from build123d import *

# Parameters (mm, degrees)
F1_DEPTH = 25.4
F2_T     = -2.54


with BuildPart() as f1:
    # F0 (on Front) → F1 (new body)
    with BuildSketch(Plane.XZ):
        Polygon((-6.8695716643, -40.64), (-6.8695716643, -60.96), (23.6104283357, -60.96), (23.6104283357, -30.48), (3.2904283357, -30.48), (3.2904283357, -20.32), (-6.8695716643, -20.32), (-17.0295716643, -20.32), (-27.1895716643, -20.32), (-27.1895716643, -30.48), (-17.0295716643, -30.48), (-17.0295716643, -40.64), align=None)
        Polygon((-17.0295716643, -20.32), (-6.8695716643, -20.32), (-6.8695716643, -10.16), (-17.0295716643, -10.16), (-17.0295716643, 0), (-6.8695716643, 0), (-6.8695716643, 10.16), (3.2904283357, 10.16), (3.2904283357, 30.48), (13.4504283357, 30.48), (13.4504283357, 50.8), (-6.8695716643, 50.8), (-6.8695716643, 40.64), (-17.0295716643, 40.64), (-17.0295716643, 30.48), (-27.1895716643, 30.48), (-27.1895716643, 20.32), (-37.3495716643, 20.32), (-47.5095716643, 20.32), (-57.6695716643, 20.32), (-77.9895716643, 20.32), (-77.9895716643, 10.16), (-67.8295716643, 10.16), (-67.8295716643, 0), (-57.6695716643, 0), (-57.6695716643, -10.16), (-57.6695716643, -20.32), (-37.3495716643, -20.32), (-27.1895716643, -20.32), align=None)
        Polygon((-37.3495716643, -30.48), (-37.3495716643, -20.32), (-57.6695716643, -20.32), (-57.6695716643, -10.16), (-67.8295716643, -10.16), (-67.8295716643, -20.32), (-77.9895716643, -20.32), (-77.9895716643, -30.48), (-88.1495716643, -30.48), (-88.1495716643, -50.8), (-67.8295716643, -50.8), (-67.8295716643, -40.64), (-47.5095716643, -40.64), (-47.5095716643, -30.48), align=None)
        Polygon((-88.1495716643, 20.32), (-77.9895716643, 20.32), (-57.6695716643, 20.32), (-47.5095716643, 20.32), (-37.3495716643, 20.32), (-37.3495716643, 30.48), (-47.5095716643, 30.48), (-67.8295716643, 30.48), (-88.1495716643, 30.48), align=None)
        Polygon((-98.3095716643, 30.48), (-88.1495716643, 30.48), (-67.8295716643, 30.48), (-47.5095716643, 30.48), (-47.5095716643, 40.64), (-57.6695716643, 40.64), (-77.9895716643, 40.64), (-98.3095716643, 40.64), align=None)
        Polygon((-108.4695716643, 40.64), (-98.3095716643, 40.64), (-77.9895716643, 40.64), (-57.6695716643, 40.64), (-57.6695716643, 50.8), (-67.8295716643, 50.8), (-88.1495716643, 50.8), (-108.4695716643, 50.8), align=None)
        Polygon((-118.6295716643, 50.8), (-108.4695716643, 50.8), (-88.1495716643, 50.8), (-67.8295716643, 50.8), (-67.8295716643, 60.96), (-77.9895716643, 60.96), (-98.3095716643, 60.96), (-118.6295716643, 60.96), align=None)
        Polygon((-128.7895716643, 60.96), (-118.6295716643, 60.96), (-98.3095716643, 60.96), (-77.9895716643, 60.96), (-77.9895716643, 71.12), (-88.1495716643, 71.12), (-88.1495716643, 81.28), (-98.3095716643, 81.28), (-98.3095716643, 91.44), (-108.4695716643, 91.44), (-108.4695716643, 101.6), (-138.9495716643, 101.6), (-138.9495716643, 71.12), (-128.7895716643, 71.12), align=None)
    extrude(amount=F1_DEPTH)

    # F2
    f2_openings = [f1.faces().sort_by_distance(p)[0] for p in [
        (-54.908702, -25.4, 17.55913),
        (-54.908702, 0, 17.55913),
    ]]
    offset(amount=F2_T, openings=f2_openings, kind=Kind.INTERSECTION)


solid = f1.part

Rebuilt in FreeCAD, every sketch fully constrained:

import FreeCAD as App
import Part
import Sketcher
Q = App.Units.Quantity


def faces_at(feature, points):
    """Names of the faces that lie closest to the given points."""
    faces = feature.Shape.Faces
    near = lambda p: min(range(len(faces)), key=lambda i: faces[i].distToShape(Part.Vertex(*p))[0])
    return sorted({f"Face{near(p) + 1}" for p in points})


def add_polygon(sketch, points):
    """Adds a closed chain of lines whose ends are joined by coincident constraints."""
    first, n = sketch.GeometryCount, len(points)
    for a, b in zip(points, points[1:] + points[:1]):
        sketch.addGeometry(Part.LineSegment(App.Vector(*a, 0), App.Vector(*b, 0)), False)
    for i in range(n):
        sketch.addConstraint(Sketcher.Constraint("Coincident", first + i, 2, first + (i + 1) % n, 1))

doc = App.newDocument("Part")
body = doc.addObject("PartDesign::Body", "Body")

# Sketch on XZ plane
sketch1 = body.newObject("Sketcher::SketchObject", "Sketch")
sketch1.AttachmentSupport = (doc.getObject("XZ_Plane"), [""])
sketch1.MapMode = "FlatFace"
add_polygon(sketch1, [(-7, -41), (-7, -61), (24, -61), (24, -30), (3, -30), (3, -20), (-7, -20), (-7, -10), (-17, -10), (-17, 0), (-7, 0), (-7, 10), (3, 10), (3, 30), (13, 30), (13, 51), (-7, 51), (-7, 41), (-17, 41), (-17, 30), (-27, 30), (-27, 20), (-37, 20), (-37, 30), (-48, 30), (-48, 41), (-58, 41), (-58, 51), (-68, 51), (-68, 61), (-78, 61), (-78, 71), (-88, 71), (-88, 81), (-98, 81), (-98, 91), (-108, 91), (-108, 102), (-139, 102), (-139, 71), (-129, 71), (-129, 61), (-119, 61), (-119, 51), (-108, 51), (-108, 41), (-98, 41), (-98, 30), (-88, 30), (-88, 20), (-78, 20), (-78, 10), (-68, 10), (-68, 0), (-58, 0), (-58, -10), (-68, -10), (-68, -20), (-78, -20), (-78, -30), (-88, -30), (-88, -51), (-68, -51), (-68, -41), (-48, -41), (-48, -30), (-37, -30), (-37, -20), (-27, -20), (-27, -30), (-17, -30), (-17, -41)])  # lines 0-71
sketch1.addConstraint([
    Sketcher.Constraint("Vertical", 0),
    Sketcher.Constraint("Horizontal", 1),
    Sketcher.Constraint("Vertical", 2),
    Sketcher.Constraint("Horizontal", 3),
    Sketcher.Constraint("Vertical", 4),
    Sketcher.Constraint("Horizontal", 5),
    Sketcher.Constraint("Vertical", 6),
    Sketcher.Constraint("Horizontal", 7),
    Sketcher.Constraint("Vertical", 8),
    Sketcher.Constraint("Horizontal", 9),
    Sketcher.Constraint("Vertical", 10),
    Sketcher.Constraint("Horizontal", 11),
    Sketcher.Constraint("Vertical", 12),
    Sketcher.Constraint("Horizontal", 13),
    Sketcher.Constraint("Vertical", 14),
    Sketcher.Constraint("Horizontal", 15),
    Sketcher.Constraint("Vertical", 16),
    Sketcher.Constraint("Horizontal", 17),
    Sketcher.Constraint("Vertical", 18),
    Sketcher.Constraint("Horizontal", 19),
    Sketcher.Constraint("Vertical", 20),
    Sketcher.Constraint("Horizontal", 21),
    Sketcher.Constraint("Vertical", 22),
    Sketcher.Constraint("Horizontal", 23),
    Sketcher.Constraint("Vertical", 24),
    Sketcher.Constraint("Horizontal", 25),
    Sketcher.Constraint("Vertical", 26),
    Sketcher.Constraint("Horizontal", 27),
    Sketcher.Constraint("Vertical", 28),
    Sketcher.Constraint("Horizontal", 29),
    Sketcher.Constraint("Vertical", 30),
    Sketcher.Constraint("Horizontal", 31),
    Sketcher.Constraint("Vertical", 32),
    Sketcher.Constraint("Horizontal", 33),
    Sketcher.Constraint("Vertical", 34),
    Sketcher.Constraint("Horizontal", 35),
    Sketcher.Constraint("Vertical", 36),
    Sketcher.Constraint("Horizontal", 37),
    Sketcher.Constraint("Vertical", 38),
    Sketcher.Constraint("Horizontal", 39),
    Sketcher.Constraint("Vertical", 40),
    Sketcher.Constraint("Horizontal", 41),
    Sketcher.Constraint("Vertical", 42),
    Sketcher.Constraint("Horizontal", 43),
    Sketcher.Constraint("Vertical", 44),
    Sketcher.Constraint("Horizontal", 45),
    Sketcher.Constraint("Vertical", 46),
    Sketcher.Constraint("Horizontal", 47),
    Sketcher.Constraint("Vertical", 48),
    Sketcher.Constraint("Horizontal", 49),
    Sketcher.Constraint("Vertical", 50),
    Sketcher.Constraint("Horizontal", 51),
    Sketcher.Constraint("Vertical", 52),
    Sketcher.Constraint("Horizontal", 53),
    Sketcher.Constraint("Vertical", 54),
    Sketcher.Constraint("Horizontal", 55),
    Sketcher.Constraint("Vertical", 56),
    Sketcher.Constraint("Horizontal", 57),
    Sketcher.Constraint("Vertical", 58),
    Sketcher.Constraint("Horizontal", 59),
    Sketcher.Constraint("Vertical", 60),
    Sketcher.Constraint("Horizontal", 61),
    Sketcher.Constraint("Vertical", 62),
    Sketcher.Constraint("Horizontal", 63),
    Sketcher.Constraint("Vertical", 64),
    Sketcher.Constraint("Horizontal", 65),
    Sketcher.Constraint("Vertical", 66),
    Sketcher.Constraint("Horizontal", 67),
    Sketcher.Constraint("Vertical", 68),
    Sketcher.Constraint("Horizontal", 69),
    Sketcher.Constraint("Vertical", 70),
    Sketcher.Constraint("Horizontal", 71),
    Sketcher.Constraint("Symmetric", 6, 2, 10, 2, -1),
    Sketcher.Constraint("Symmetric", 3, 2, 12, 2, -1),
    Sketcher.Constraint("Symmetric", 51, 2, 55, 2, -1),
    Sketcher.Constraint("Symmetric", 49, 2, 57, 2, -1),
    Sketcher.Constraint("Symmetric", 47, 2, 59, 2, -1),
    Sketcher.Constraint("Symmetric", 27, 2, 61, 2, -1),
    Sketcher.Constraint("Symmetric", 24, 2, 63, 2, -1),
    Sketcher.Constraint("Symmetric", 22, 2, 65, 2, -1),
    Sketcher.Constraint("Symmetric", 20, 2, 67, 2, -1),
    Sketcher.Constraint("Symmetric", 18, 2, 69, 2, -1),
    Sketcher.Constraint("Symmetric", 16, 2, 71, 2, -1),
    Sketcher.Constraint("PointOnObject", 8, 2, -1),
    Sketcher.Constraint("PointOnObject", 52, 2, -1),
    Sketcher.Constraint("Horizontal", 13, 2, 18, 2),
    Sketcher.Constraint("Horizontal", 19, 2, 22, 2),
    Sketcher.Constraint("Horizontal", 17, 2, 24, 2),
    Sketcher.Constraint("Horizontal", 15, 2, 26, 2),
    Sketcher.Constraint("Horizontal", 31, 2, 38, 2),
    Sketcher.Constraint("Horizontal", 29, 2, 40, 2),
    Sketcher.Constraint("Horizontal", 27, 2, 42, 2),
    Sketcher.Constraint("Horizontal", 25, 2, 44, 2),
    Sketcher.Constraint("Horizontal", 23, 2, 46, 2),
    Sketcher.Constraint("Horizontal", 21, 2, 48, 2),
    Sketcher.Constraint("Horizontal", 11, 2, 50, 2),
    Sketcher.Constraint("Horizontal", 5, 2, 56, 2),
    Sketcher.Constraint("Vertical", 0, 2, 5, 2),
    Sketcher.Constraint("Vertical", 8, 2, 17, 2),
    Sketcher.Constraint("Vertical", 36, 2, 43, 2),
    Sketcher.Constraint("Vertical", 34, 2, 45, 2),
    Sketcher.Constraint("Vertical", 32, 2, 47, 2),
    Sketcher.Constraint("Vertical", 30, 2, 49, 2),
    Sketcher.Constraint("Vertical", 28, 2, 51, 2),
    Sketcher.Constraint("Vertical", 26, 2, 53, 2),
    Sketcher.Constraint("Equal", 5, 7),
    Sketcher.Constraint("Equal", 11, 13),
    Sketcher.Constraint("Equal", 3, 15),
    Sketcher.Constraint("Equal", 17, 19),
    Sketcher.Constraint("Equal", 19, 21),
    Sketcher.Constraint("Equal", 21, 23),
    Sketcher.Constraint("Equal", 23, 25),
    Sketcher.Constraint("Equal", 25, 27),
    Sketcher.Constraint("Equal", 27, 29),
    Sketcher.Constraint("Equal", 29, 31),
    Sketcher.Constraint("Equal", 31, 33),
    Sketcher.Constraint("Equal", 33, 35),
    Sketcher.Constraint("Equal", 1, 37),
    Sketcher.Constraint("Equal", 35, 39),
    Sketcher.Constraint("Equal", 39, 41),
    Sketcher.Constraint("Equal", 63, 0),
    Sketcher.Constraint("Equal", 37, 2),
    Sketcher.Constraint("Equal", 71, 4),
    Sketcher.Constraint("Equal", 4, 6),
    Sketcher.Constraint("Equal", 6, 8),
    Sketcher.Constraint("Equal", 12, 14),
    Sketcher.Constraint("Equal", 26, 28),
    Sketcher.Constraint("Equal", 28, 30),
    Sketcher.Constraint("Equal", 30, 32),
    Sketcher.Constraint("Equal", 32, 34),
    Sketcher.Constraint("Equal", 34, 36),
    Sketcher.Constraint("DistanceX", 1, 1, 1, 2, Q("1.2 in")),
    Sketcher.Constraint("DistanceX", 0, 2, -1, 1, 6.869572),
])
pad1 = body.newObject("PartDesign::Pad", "Pad")
pad1.Profile = sketch1
pad1.Length = Q("1 in")
doc.recompute()

thickness = body.newObject("PartDesign::Thickness", "Thickness")
thickness.Base = (pad1, faces_at(pad1, [(-57.67, -25.4, 20.32), (-57.67, 0, 20.32)]))
thickness.Value = Q("0.1 in")
thickness.Reversed = True
thickness.Join = "Intersection"

doc.recompute()
